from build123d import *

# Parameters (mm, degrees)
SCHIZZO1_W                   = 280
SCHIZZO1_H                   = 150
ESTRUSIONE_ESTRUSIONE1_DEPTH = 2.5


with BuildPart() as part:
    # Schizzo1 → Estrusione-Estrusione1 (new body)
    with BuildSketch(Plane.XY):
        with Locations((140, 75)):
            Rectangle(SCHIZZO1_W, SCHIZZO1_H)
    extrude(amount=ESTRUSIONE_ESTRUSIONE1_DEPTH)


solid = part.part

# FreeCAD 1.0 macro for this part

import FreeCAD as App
import Part
import Sketcher
from FreeCAD import Vector
Q = App.Units.Quantity


def add_polygon(sketch, points):
    """Adds a closed chain of lines whose ends are joined by coincident constraints."""
    first, n = sketch.GeometryCount, len(points)
    for a, b in zip(points, points[1:] + points[:1]):
        sketch.addGeometry(Part.LineSegment(App.Vector(*a, 0), App.Vector(*b, 0)), False)
    for i in range(n):
        sketch.addConstraint(Sketcher.Constraint("Coincident", first + i, 2, first + (i + 1) % n, 1))

doc = App.newDocument("Part")
params = doc.addObject("Spreadsheet::Sheet", "Params")
for row, (alias, value) in enumerate([
    ("sketch1_width", "280 mm"),
    ("sketch1_height", "150 mm"),
    ("pad1_length", "2.5 mm"),
], start=1):
    params.set(f"A{row}", alias)
    params.set(f"B{row}", "=" + value)
    params.setAlias(f"B{row}", alias)

body = doc.addObject("PartDesign::Body", "Body")

# Sketch on XY plane
sketch1 = body.newObject("Sketcher::SketchObject", "Sketch")
sketch1.AttachmentSupport = (doc.getObject("XY_Plane"), [""])
sketch1.MapMode = "FlatFace"
add_polygon(sketch1, [(0, 150), (0, 0), (280, 0), (280, 150)])  # lines 0-3
sketch1.addConstraint([
    Sketcher.Constraint("Vertical", 0),
    Sketcher.Constraint("Horizontal", 1),
    Sketcher.Constraint("Vertical", 2),
    Sketcher.Constraint("Horizontal", 3),
    Sketcher.Constraint("Coincident", 0, 2, -1, 1),
    Sketcher.Constraint("DistanceX", 1, 1, 1, 2, Q("280 mm")),
    Sketcher.Constraint("DistanceY", 0, 2, 0, 1, Q("150 mm")),
])
sketch1.setExpression("Constraints[9]", "Params.sketch1_width")
sketch1.setExpression("Constraints[10]", "Params.sketch1_height")
pad1 = body.newObject("PartDesign::Pad", "Pad")
pad1.Profile = sketch1
pad1.setExpression("Length", "Params.pad1_length")

doc.recompute()
